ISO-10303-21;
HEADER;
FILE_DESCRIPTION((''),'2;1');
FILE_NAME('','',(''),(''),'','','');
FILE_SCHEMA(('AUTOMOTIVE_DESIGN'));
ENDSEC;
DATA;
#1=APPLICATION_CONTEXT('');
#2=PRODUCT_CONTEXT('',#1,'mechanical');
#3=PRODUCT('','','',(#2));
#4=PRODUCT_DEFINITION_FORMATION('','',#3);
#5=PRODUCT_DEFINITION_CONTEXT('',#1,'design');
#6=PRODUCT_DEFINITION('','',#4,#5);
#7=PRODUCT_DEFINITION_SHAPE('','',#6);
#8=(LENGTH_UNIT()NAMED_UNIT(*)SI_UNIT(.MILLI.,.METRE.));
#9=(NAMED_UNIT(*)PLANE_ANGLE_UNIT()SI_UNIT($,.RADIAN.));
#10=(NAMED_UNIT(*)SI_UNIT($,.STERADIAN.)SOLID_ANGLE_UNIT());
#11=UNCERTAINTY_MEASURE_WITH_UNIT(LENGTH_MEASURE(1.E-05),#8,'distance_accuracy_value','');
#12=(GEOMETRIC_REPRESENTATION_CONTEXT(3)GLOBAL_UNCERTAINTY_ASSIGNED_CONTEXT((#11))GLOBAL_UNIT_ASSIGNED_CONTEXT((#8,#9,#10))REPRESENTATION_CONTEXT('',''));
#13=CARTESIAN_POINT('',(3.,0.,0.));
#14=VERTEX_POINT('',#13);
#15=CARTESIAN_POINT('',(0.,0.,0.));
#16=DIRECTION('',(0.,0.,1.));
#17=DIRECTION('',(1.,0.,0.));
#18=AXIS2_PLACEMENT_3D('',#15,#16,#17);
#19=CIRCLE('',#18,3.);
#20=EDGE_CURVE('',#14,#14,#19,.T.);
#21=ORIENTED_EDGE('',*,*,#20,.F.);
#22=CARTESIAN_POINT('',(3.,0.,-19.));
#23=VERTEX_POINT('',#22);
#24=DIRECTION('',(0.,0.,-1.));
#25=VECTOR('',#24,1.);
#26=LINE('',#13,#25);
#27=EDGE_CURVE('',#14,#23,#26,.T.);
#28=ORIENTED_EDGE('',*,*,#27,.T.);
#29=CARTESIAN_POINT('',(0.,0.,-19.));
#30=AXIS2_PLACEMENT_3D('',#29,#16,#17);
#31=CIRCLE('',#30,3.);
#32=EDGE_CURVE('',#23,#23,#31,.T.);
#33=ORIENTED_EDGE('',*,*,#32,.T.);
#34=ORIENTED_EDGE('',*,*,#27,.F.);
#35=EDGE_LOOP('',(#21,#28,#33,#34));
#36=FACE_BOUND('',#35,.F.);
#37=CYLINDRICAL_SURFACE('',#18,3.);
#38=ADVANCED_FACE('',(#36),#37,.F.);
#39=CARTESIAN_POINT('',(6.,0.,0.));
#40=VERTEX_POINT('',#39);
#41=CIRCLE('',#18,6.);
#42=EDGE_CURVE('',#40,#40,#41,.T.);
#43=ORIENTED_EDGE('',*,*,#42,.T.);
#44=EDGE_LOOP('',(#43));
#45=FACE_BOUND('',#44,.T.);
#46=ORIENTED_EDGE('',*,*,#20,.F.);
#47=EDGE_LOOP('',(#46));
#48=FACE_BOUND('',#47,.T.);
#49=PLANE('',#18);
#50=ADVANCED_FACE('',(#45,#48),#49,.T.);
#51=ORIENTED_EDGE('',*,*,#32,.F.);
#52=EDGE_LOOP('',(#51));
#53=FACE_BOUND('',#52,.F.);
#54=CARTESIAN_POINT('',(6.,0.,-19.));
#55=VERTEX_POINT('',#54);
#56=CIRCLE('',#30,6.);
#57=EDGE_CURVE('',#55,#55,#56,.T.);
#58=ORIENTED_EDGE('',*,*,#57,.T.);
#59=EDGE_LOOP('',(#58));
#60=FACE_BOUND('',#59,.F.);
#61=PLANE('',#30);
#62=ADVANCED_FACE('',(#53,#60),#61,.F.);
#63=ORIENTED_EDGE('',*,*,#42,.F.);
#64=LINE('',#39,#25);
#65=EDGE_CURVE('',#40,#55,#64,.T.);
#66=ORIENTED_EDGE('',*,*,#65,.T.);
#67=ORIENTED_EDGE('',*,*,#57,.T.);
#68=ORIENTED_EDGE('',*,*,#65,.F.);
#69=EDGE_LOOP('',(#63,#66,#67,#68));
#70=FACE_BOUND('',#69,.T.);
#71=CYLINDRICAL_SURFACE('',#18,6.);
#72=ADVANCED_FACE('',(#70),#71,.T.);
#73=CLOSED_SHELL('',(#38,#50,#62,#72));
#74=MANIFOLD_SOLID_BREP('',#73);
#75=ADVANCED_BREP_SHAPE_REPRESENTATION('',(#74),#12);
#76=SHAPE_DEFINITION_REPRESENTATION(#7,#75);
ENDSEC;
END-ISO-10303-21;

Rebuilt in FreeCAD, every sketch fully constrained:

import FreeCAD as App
import Part
import Sketcher
from FreeCAD import Vector

doc = App.newDocument("Part")
body = doc.addObject("PartDesign::Body", "Body")

# Sketch on XY plane
sketch1 = body.newObject("Sketcher::SketchObject", "Sketch")
sketch1.AttachmentSupport = (doc.getObject("XY_Plane"), [""])
sketch1.MapMode = "FlatFace"
sketch1.addGeometry([
    Part.Circle(Vector(0, 0, 0), Vector(0, 0, 1), 6),
    Part.Circle(Vector(0, 0, 0), Vector(0, 0, 1), 3),
], False)
sketch1.addConstraint([
    Sketcher.Constraint("Coincident", 0, 3, -1, 1),
    Sketcher.Constraint("Coincident", 1, 3, -1, 1),
    Sketcher.Constraint("Diameter", 0, 12.0),
    Sketcher.Constraint("Diameter", 1, 6.0),
])
pad1 = body.newObject("PartDesign::Pad", "Pad")
pad1.Profile = sketch1
pad1.Length = 19
pad1.Reversed = True

doc.recompute()
